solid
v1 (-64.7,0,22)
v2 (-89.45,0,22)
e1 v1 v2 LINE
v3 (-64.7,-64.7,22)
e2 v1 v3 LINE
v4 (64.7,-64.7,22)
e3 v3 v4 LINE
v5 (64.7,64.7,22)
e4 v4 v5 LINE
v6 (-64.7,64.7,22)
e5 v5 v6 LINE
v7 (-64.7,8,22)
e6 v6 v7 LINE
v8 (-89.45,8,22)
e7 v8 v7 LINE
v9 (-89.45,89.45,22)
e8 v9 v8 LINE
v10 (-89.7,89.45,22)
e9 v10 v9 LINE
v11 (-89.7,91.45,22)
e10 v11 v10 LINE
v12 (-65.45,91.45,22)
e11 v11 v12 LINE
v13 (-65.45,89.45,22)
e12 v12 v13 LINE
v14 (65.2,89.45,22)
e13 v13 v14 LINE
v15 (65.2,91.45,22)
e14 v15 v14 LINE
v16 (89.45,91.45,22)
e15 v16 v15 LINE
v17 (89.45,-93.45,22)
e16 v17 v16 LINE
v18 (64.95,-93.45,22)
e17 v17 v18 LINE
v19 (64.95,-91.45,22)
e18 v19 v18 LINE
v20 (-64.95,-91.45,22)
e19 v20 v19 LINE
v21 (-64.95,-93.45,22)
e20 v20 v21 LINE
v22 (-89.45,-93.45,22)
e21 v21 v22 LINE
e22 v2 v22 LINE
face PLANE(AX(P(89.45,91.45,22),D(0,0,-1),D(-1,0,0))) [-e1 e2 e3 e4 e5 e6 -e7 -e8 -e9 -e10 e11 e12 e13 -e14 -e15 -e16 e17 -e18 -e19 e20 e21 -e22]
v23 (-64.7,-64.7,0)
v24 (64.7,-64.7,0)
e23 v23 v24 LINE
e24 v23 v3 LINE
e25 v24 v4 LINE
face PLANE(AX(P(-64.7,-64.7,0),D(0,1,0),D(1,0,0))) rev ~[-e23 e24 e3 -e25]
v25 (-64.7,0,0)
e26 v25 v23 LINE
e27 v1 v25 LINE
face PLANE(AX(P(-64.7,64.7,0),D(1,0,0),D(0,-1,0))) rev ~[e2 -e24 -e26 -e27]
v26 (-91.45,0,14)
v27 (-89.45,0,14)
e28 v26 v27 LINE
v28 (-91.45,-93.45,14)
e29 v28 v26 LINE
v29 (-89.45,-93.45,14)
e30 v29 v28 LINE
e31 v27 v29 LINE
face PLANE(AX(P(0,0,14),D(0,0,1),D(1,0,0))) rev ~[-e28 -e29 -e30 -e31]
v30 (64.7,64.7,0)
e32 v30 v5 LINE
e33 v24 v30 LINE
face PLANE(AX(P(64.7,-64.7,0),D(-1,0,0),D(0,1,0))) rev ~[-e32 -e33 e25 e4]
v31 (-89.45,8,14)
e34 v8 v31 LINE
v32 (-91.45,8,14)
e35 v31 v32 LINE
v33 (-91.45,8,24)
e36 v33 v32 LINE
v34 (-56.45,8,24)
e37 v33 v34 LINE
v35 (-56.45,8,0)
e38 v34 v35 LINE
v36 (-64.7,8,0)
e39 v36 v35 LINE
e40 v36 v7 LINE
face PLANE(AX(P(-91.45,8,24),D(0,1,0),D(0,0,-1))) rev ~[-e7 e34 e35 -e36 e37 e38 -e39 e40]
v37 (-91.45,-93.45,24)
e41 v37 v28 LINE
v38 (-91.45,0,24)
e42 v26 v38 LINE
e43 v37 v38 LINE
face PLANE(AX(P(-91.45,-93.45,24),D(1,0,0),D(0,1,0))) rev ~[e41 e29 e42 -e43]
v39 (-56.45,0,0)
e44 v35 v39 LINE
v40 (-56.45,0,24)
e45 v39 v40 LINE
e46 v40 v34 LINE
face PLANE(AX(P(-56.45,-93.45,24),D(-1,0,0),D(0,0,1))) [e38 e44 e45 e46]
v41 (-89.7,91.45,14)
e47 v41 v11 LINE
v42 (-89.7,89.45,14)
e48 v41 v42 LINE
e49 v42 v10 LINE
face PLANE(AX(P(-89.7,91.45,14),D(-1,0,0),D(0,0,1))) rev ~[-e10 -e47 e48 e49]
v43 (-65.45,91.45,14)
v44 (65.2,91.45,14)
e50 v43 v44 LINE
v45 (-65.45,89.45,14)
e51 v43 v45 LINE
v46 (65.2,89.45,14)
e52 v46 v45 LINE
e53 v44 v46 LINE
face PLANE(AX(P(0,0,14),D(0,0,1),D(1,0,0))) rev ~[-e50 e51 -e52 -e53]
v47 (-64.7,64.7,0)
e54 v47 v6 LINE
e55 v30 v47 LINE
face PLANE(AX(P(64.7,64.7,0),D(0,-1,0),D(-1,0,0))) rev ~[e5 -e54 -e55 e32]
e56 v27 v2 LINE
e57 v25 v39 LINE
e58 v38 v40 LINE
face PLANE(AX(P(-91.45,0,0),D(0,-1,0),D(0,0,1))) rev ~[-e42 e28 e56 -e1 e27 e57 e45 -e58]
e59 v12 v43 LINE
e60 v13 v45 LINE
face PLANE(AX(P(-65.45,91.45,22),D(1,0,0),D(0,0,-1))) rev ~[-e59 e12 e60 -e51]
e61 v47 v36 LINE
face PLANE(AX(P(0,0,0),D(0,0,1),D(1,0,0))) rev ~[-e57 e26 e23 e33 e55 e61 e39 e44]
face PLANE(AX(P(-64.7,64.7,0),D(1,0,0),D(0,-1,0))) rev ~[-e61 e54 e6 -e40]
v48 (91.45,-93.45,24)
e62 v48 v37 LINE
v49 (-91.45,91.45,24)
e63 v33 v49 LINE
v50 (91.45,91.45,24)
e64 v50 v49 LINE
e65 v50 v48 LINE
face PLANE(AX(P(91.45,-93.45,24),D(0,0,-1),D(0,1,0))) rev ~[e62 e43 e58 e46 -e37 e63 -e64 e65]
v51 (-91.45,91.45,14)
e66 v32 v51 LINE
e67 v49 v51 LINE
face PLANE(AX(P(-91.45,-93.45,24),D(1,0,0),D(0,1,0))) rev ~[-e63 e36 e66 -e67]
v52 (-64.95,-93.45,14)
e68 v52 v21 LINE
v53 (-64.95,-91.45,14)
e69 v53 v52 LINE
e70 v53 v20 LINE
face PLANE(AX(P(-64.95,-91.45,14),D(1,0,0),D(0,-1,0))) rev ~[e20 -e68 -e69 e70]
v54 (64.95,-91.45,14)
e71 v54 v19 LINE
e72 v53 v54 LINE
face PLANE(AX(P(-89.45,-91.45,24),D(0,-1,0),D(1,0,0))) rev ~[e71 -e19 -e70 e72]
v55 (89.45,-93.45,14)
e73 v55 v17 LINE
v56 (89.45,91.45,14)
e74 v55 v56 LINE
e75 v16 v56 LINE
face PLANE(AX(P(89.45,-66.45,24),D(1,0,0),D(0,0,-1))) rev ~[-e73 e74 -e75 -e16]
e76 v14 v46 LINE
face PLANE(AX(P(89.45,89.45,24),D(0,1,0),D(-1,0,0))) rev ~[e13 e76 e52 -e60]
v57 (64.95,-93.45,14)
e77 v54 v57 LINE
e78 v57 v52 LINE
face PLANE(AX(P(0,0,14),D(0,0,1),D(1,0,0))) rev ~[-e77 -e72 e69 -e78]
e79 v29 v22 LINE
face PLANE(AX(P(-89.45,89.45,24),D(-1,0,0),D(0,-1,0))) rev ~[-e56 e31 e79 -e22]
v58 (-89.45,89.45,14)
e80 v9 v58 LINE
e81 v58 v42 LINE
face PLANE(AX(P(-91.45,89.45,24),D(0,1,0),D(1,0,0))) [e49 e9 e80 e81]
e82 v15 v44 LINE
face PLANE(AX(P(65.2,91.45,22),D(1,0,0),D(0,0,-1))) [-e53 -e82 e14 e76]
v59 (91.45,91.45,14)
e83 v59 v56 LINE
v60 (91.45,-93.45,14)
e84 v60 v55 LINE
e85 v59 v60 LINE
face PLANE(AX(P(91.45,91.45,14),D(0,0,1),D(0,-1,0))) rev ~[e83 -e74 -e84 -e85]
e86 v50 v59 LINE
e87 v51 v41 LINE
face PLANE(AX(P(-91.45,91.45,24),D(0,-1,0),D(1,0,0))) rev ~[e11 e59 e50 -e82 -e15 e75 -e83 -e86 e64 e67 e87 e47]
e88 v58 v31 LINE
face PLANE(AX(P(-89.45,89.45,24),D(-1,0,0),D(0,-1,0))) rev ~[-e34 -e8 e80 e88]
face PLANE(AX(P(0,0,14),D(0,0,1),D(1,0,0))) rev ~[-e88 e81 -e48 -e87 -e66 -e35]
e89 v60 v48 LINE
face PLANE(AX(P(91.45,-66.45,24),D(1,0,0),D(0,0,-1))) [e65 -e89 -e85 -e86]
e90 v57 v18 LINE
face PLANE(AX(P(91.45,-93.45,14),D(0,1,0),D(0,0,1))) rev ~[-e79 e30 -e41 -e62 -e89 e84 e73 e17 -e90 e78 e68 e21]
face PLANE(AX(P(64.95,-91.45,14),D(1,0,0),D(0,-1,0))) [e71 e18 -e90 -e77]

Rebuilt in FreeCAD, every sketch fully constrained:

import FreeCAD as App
import Part
import Sketcher


def add_polygon(sketch, points):
    """Adds a closed chain of lines whose ends are joined by coincident constraints."""
    first, n = sketch.GeometryCount, len(points)
    for a, b in zip(points, points[1:] + points[:1]):
        sketch.addGeometry(Part.LineSegment(App.Vector(*a, 0), App.Vector(*b, 0)), False)
    for i in range(n):
        sketch.addConstraint(Sketcher.Constraint("Coincident", first + i, 2, first + (i + 1) % n, 1))

doc = App.newDocument("Part")
body = doc.addObject("PartDesign::Body", "Body")

# Sketch on XY plane
sketch1 = doc.addObject("Sketcher::SketchObject", "Sketch")
body.addObject(sketch1)
sketch1.AttachmentSupport = (doc.XY_Plane, [""])
sketch1.MapMode = "FlatFace"
add_polygon(sketch1, [(-65, 65), (-65, -65), (65, -65), (65, 65)])  # lines 0-3
sketch1.addConstraint([
    Sketcher.Constraint("Vertical", 0),
    Sketcher.Constraint("Horizontal", 1),
    Sketcher.Constraint("Vertical", 2),
    Sketcher.Constraint("Horizontal", 3),
    Sketcher.Constraint("Symmetric", 0, 2, 2, 2, -1, 1),
    Sketcher.Constraint("Equal", 3, 0),
    Sketcher.Constraint("DistanceX", 1, 1, 1, 2, 129.4),
])
pad1 = doc.addObject("PartDesign::Pad", "Pad")
body.addObject(pad1)
pad1.Profile = sketch1
pad1.Length = 22

# Sketch on XY plane
sketch2 = doc.addObject("Sketcher::SketchObject", "Sketch001")
body.addObject(sketch2)
sketch2.AttachmentSupport = (doc.XY_Plane, [""])
sketch2.MapMode = "FlatFace"
sketch2.AttachmentOffset = App.Placement(App.Vector(0, 0, 22), App.Rotation())
add_polygon(sketch2, [(89, 89), (-89, 89), (-89, -91), (89, -91)])  # lines 0-3
sketch2.addConstraint([
    Sketcher.Constraint("Horizontal", 0),
    Sketcher.Constraint("Vertical", 1),
    Sketcher.Constraint("Horizontal", 2),
    Sketcher.Constraint("Vertical", 3),
    Sketcher.Constraint("DistanceX", 0, 2, 0, 1, 178.9),
    Sketcher.Constraint("DistanceY", 1, 2, 1, 1, 180.9),
    Sketcher.Constraint("DistanceX", 0, 2, -1, 1, 89.45),
    Sketcher.Constraint("DistanceY", -1, 1, 0, 2, 89.45),
])
pad2 = doc.addObject("PartDesign::Pad", "Pad001")
body.addObject(pad2)
pad2.Profile = sketch2
pad2.Length = 2

# Sketch on XY plane
sketch3 = doc.addObject("Sketcher::SketchObject", "Sketch002")
body.addObject(sketch3)
sketch3.AttachmentSupport = (doc.XY_Plane, [""])
sketch3.MapMode = "FlatFace"
sketch3.AttachmentOffset = App.Placement(App.Vector(0, 0, 24), App.Rotation())
add_polygon(sketch3, [(91, 91), (-91, 91), (-91, -93), (91, -93)])  # lines 0-3
add_polygon(sketch3, [(-89, 89), (89, 89), (89, -91), (-89, -91)])  # lines 4-7
sketch3.addConstraint([
    Sketcher.Constraint("Horizontal", 0),
    Sketcher.Constraint("Vertical", 1),
    Sketcher.Constraint("Horizontal", 2),
    Sketcher.Constraint("Vertical", 3),
    Sketcher.Constraint("Horizontal", 4),
    Sketcher.Constraint("Vertical", 5),
    Sketcher.Constraint("Horizontal", 6),
    Sketcher.Constraint("Vertical", 7),
    Sketcher.Constraint("DistanceX", 4, 2, 3, 2, 2.0),
    Sketcher.Constraint("DistanceY", 4, 2, 3, 2, 2.0),
    Sketcher.Constraint("DistanceY", 2, 2, 5, 2, 2.0),
    Sketcher.Constraint("DistanceX", 1, 2, 6, 2, 2.0),
    Sketcher.Constraint("DistanceX", 0, 2, 0, 1, 182.9),
    Sketcher.Constraint("DistanceY", 1, 2, 1, 1, 184.9),
    Sketcher.Constraint("DistanceX", 0, 2, -1, 1, 91.45),
    Sketcher.Constraint("DistanceY", -1, 1, 0, 2, 91.45),
])
pad3 = doc.addObject("PartDesign::Pad", "Pad002")
body.addObject(pad3)
pad3.Profile = sketch3
pad3.Length = 10
pad3.Reversed = True

# Sketch on XY plane
sketch4 = doc.addObject("Sketcher::SketchObject", "Sketch003")
body.addObject(sketch4)
sketch4.AttachmentSupport = (doc.XY_Plane, [""])
sketch4.MapMode = "FlatFace"
sketch4.AttachmentOffset = App.Placement(App.Vector(0, 0, 14), App.Rotation())
add_polygon(sketch4, [(-89.5, -93.5), (-89.5, -91.5), (-65, -91.5), (-65, -93.5)])  # lines 0-3
add_polygon(sketch4, [(65, -93.5), (65, -91.5), (89.5, -91.5), (89.5, -93.5)])  # lines 4-7
sketch4.addConstraint([
    Sketcher.Constraint("Vertical", 0),
    Sketcher.Constraint("Horizontal", 1),
    Sketcher.Constraint("Vertical", 2),
    Sketcher.Constraint("Horizontal", 3),
    Sketcher.Constraint("Vertical", 4),
    Sketcher.Constraint("Horizontal", 5),
    Sketcher.Constraint("Vertical", 6),
    Sketcher.Constraint("Horizontal", 7),
    Sketcher.Constraint("Symmetric", 1, 2, 4, 2, -2),
    Sketcher.Constraint("Symmetric", 3, 2, 6, 2, -2),
    Sketcher.Constraint("DistanceX", 1, 1, 1, 2, 24.5),
    Sketcher.Constraint("DistanceY", 0, 1, 0, 2, 2.0),
    Sketcher.Constraint("DistanceX", 1, 2, 4, 2, 129.9),
    Sketcher.Constraint("DistanceY", 0, 2, -1, 1, 91.45),
])
pocket1 = doc.addObject("PartDesign::Pocket", "Pocket")
body.addObject(pocket1)
pocket1.Profile = sketch4
pocket1.Length = 8
pocket1.Reversed = True

# Sketch on YZ plane
sketch5 = doc.addObject("Sketcher::SketchObject", "Sketch004")
body.addObject(sketch5)
sketch5.AttachmentSupport = (doc.YZ_Plane, [""])
sketch5.MapMode = "FlatFace"
sketch5.AttachmentOffset = App.Placement(App.Vector(0, 0, 91.45), App.Rotation())
add_polygon(sketch5, [(-93, 24), (-93, 14), (-66, 14), (-66, 24)])  # lines 0-3
add_polygon(sketch5, [(64, 24), (64, 14), (91, 14), (91, 24)])  # lines 4-7
sketch5.addConstraint([
    Sketcher.Constraint("Vertical", 0),
    Sketcher.Constraint("Horizontal", 1),
    Sketcher.Constraint("Vertical", 2),
    Sketcher.Constraint("Horizontal", 3),
    Sketcher.Constraint("Vertical", 4),
    Sketcher.Constraint("Horizontal", 5),
    Sketcher.Constraint("Vertical", 6),
    Sketcher.Constraint("Horizontal", 7),
    Sketcher.Constraint("Horizontal", 1, 2, 4, 2),
    Sketcher.Constraint("Horizontal", 3, 2, 6, 2),
    Sketcher.Constraint("Equal", 3, 5),
    Sketcher.Constraint("DistanceX", 1, 1, 1, 2, 27.0),
    Sketcher.Constraint("DistanceY", 0, 2, 0, 1, 10.0),
    Sketcher.Constraint("DistanceY", -1, 1, 0, 2, 14.0),
    Sketcher.Constraint("DistanceX", 1, 2, 4, 2, 130.9),
    Sketcher.Constraint("DistanceX", 0, 2, -1, 1, 93.45),
])
pocket2 = doc.addObject("PartDesign::Pocket", "Pocket001")
body.addObject(pocket2)
pocket2.Profile = sketch5
pocket2.Length = 2

# Sketch on XZ plane
sketch6 = doc.addObject("Sketcher::SketchObject", "Sketch005")
body.addObject(sketch6)
sketch6.AttachmentSupport = (doc.XZ_Plane, [""])
sketch6.MapMode = "FlatFace"
sketch6.AttachmentOffset = App.Placement(App.Vector(0, 0, -91.45), App.Rotation())
add_polygon(sketch6, [(-65, 22), (-65, 14), (-90, 14), (-90, 22)])  # lines 0-3
add_polygon(sketch6, [(89, 22), (89, 14), (65, 14), (65, 22)])  # lines 4-7
sketch6.addConstraint([
    Sketcher.Constraint("Vertical", 0),
    Sketcher.Constraint("Horizontal", 1),
    Sketcher.Constraint("Vertical", 2),
    Sketcher.Constraint("Horizontal", 3),
    Sketcher.Constraint("Vertical", 4),
    Sketcher.Constraint("Horizontal", 5),
    Sketcher.Constraint("Vertical", 6),
    Sketcher.Constraint("Horizontal", 7),
    Sketcher.Constraint("Horizontal", 1, 2, 4, 2),
    Sketcher.Constraint("Horizontal", 3, 2, 6, 2),
    Sketcher.Constraint("Equal", 3, 5),
    Sketcher.Constraint("DistanceX", 1, 2, 1, 1, 24.25),
    Sketcher.Constraint("DistanceY", 0, 2, 0, 1, 8.0),
    Sketcher.Constraint("DistanceY", -1, 1, 0, 2, 14.0),
    Sketcher.Constraint("DistanceX", 1, 2, -1, 1, 89.7),
    Sketcher.Constraint("DistanceX", -1, 1, 5, 2, 65.2),
])
pocket3 = doc.addObject("PartDesign::Pocket", "Pocket002")
body.addObject(pocket3)
pocket3.Profile = sketch6
pocket3.Length = 2
pocket3.Reversed = True

# Sketch on YZ plane
sketch7 = doc.addObject("Sketcher::SketchObject", "Sketch006")
body.addObject(sketch7)
sketch7.AttachmentSupport = (doc.YZ_Plane, [""])
sketch7.MapMode = "FlatFace"
sketch7.AttachmentOffset = App.Placement(App.Vector(0, 0, 91.45), App.Rotation())
add_polygon(sketch7, [(-93, 24), (-93, 14), (91, 14), (91, 24)])  # lines 0-3
sketch7.addConstraint([
    Sketcher.Constraint("Vertical", 0),
    Sketcher.Constraint("Horizontal", 1),
    Sketcher.Constraint("Vertical", 2),
    Sketcher.Constraint("Horizontal", 3),
    Sketcher.Constraint("DistanceY", 0, 2, 0, 1, 10.0),
    Sketcher.Constraint("DistanceX", 1, 1, 1, 2, 184.9),
    Sketcher.Constraint("DistanceY", -1, 1, 0, 2, 14.0),
    Sketcher.Constraint("DistanceX", 0, 2, -1, 1, 93.45),
])
pad4 = doc.addObject("PartDesign::Pad", "Pad003")
body.addObject(pad4)
pad4.Profile = sketch7
pad4.Length = 2
pad4.Reversed = True

# Sketch on YZ plane
sketch8 = doc.addObject("Sketcher::SketchObject", "Sketch007")
body.addObject(sketch8)
sketch8.AttachmentSupport = (doc.YZ_Plane, [""])
sketch8.MapMode = "FlatFace"
sketch8.AttachmentOffset = App.Placement(App.Vector(0, 0, -91.45), App.Rotation())
add_polygon(sketch8, [(8, 0), (0, 0), (0, 24), (8, 24)])  # lines 0-3
sketch8.addConstraint([
    Sketcher.Constraint("Horizontal", 0),
    Sketcher.Constraint("Vertical", 1),
    Sketcher.Constraint("Horizontal", 2),
    Sketcher.Constraint("Vertical", 3),
    Sketcher.Constraint("Coincident", 0, 2, -1, 1),
    Sketcher.Constraint("DistanceX", 0, 2, 0, 1, 8.0),
    Sketcher.Constraint("DistanceY", 1, 1, 1, 2, 24.0),
])
pocket4 = doc.addObject("PartDesign::Pocket", "Pocket003")
body.addObject(pocket4)
pocket4.Profile = sketch8
pocket4.Length = 35
pocket4.Reversed = True

doc.recompute()
